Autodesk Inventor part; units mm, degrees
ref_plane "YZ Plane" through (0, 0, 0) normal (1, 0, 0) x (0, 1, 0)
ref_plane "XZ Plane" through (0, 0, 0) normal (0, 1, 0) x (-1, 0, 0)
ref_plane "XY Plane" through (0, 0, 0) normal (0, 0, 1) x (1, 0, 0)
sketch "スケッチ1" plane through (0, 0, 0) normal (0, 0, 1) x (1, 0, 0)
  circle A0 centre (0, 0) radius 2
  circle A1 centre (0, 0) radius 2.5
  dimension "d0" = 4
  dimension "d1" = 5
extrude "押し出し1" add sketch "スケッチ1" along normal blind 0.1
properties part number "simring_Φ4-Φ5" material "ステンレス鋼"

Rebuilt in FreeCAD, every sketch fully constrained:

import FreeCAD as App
import Part
import Sketcher

V = App.Vector
Q = App.Units.Quantity

doc = App.newDocument("Part")
params = doc.addObject("Spreadsheet::Sheet", "Params")
for row, (alias, value) in enumerate([
    ("sketch1_diameter", "5 mm"),
    ("sketch1_diameter2", "4 mm"),
    ("pad1_length", "0.1 mm"),
], start=1):
    params.set(f"A{row}", alias)
    params.set(f"B{row}", "=" + value)
    params.setAlias(f"B{row}", alias)

body = doc.addObject("PartDesign::Body", "Body")

# Sketch on XY plane
sketch1 = body.newObject("Sketcher::SketchObject", "Sketch")
sketch1.AttachmentSupport = (doc.getObject("XY_Plane"), [""])
sketch1.MapMode = "FlatFace"
sketch1.addGeometry(Part.Circle(V(0, 0, 0), V(0, 0, 1), 2.5), False)
sketch1.addGeometry(Part.Circle(V(0, 0, 0), V(0, 0, 1), 2), False)
sketch1.addConstraint(Sketcher.Constraint("Coincident", 0, 3, -1, 1))
sketch1.addConstraint(Sketcher.Constraint("Coincident", 1, 3, -1, 1))
sketch1.addConstraint(Sketcher.Constraint("Diameter", 0, Q("5 mm")))
sketch1.addConstraint(Sketcher.Constraint("Diameter", 1, Q("4 mm")))
sketch1.setExpression("Constraints[2]", "Params.sketch1_diameter")
sketch1.setExpression("Constraints[3]", "Params.sketch1_diameter2")
pad1 = body.newObject("PartDesign::Pad", "Pad")
pad1.Profile = sketch1
pad1.setExpression("Length", "Params.pad1_length")

doc.recompute()
